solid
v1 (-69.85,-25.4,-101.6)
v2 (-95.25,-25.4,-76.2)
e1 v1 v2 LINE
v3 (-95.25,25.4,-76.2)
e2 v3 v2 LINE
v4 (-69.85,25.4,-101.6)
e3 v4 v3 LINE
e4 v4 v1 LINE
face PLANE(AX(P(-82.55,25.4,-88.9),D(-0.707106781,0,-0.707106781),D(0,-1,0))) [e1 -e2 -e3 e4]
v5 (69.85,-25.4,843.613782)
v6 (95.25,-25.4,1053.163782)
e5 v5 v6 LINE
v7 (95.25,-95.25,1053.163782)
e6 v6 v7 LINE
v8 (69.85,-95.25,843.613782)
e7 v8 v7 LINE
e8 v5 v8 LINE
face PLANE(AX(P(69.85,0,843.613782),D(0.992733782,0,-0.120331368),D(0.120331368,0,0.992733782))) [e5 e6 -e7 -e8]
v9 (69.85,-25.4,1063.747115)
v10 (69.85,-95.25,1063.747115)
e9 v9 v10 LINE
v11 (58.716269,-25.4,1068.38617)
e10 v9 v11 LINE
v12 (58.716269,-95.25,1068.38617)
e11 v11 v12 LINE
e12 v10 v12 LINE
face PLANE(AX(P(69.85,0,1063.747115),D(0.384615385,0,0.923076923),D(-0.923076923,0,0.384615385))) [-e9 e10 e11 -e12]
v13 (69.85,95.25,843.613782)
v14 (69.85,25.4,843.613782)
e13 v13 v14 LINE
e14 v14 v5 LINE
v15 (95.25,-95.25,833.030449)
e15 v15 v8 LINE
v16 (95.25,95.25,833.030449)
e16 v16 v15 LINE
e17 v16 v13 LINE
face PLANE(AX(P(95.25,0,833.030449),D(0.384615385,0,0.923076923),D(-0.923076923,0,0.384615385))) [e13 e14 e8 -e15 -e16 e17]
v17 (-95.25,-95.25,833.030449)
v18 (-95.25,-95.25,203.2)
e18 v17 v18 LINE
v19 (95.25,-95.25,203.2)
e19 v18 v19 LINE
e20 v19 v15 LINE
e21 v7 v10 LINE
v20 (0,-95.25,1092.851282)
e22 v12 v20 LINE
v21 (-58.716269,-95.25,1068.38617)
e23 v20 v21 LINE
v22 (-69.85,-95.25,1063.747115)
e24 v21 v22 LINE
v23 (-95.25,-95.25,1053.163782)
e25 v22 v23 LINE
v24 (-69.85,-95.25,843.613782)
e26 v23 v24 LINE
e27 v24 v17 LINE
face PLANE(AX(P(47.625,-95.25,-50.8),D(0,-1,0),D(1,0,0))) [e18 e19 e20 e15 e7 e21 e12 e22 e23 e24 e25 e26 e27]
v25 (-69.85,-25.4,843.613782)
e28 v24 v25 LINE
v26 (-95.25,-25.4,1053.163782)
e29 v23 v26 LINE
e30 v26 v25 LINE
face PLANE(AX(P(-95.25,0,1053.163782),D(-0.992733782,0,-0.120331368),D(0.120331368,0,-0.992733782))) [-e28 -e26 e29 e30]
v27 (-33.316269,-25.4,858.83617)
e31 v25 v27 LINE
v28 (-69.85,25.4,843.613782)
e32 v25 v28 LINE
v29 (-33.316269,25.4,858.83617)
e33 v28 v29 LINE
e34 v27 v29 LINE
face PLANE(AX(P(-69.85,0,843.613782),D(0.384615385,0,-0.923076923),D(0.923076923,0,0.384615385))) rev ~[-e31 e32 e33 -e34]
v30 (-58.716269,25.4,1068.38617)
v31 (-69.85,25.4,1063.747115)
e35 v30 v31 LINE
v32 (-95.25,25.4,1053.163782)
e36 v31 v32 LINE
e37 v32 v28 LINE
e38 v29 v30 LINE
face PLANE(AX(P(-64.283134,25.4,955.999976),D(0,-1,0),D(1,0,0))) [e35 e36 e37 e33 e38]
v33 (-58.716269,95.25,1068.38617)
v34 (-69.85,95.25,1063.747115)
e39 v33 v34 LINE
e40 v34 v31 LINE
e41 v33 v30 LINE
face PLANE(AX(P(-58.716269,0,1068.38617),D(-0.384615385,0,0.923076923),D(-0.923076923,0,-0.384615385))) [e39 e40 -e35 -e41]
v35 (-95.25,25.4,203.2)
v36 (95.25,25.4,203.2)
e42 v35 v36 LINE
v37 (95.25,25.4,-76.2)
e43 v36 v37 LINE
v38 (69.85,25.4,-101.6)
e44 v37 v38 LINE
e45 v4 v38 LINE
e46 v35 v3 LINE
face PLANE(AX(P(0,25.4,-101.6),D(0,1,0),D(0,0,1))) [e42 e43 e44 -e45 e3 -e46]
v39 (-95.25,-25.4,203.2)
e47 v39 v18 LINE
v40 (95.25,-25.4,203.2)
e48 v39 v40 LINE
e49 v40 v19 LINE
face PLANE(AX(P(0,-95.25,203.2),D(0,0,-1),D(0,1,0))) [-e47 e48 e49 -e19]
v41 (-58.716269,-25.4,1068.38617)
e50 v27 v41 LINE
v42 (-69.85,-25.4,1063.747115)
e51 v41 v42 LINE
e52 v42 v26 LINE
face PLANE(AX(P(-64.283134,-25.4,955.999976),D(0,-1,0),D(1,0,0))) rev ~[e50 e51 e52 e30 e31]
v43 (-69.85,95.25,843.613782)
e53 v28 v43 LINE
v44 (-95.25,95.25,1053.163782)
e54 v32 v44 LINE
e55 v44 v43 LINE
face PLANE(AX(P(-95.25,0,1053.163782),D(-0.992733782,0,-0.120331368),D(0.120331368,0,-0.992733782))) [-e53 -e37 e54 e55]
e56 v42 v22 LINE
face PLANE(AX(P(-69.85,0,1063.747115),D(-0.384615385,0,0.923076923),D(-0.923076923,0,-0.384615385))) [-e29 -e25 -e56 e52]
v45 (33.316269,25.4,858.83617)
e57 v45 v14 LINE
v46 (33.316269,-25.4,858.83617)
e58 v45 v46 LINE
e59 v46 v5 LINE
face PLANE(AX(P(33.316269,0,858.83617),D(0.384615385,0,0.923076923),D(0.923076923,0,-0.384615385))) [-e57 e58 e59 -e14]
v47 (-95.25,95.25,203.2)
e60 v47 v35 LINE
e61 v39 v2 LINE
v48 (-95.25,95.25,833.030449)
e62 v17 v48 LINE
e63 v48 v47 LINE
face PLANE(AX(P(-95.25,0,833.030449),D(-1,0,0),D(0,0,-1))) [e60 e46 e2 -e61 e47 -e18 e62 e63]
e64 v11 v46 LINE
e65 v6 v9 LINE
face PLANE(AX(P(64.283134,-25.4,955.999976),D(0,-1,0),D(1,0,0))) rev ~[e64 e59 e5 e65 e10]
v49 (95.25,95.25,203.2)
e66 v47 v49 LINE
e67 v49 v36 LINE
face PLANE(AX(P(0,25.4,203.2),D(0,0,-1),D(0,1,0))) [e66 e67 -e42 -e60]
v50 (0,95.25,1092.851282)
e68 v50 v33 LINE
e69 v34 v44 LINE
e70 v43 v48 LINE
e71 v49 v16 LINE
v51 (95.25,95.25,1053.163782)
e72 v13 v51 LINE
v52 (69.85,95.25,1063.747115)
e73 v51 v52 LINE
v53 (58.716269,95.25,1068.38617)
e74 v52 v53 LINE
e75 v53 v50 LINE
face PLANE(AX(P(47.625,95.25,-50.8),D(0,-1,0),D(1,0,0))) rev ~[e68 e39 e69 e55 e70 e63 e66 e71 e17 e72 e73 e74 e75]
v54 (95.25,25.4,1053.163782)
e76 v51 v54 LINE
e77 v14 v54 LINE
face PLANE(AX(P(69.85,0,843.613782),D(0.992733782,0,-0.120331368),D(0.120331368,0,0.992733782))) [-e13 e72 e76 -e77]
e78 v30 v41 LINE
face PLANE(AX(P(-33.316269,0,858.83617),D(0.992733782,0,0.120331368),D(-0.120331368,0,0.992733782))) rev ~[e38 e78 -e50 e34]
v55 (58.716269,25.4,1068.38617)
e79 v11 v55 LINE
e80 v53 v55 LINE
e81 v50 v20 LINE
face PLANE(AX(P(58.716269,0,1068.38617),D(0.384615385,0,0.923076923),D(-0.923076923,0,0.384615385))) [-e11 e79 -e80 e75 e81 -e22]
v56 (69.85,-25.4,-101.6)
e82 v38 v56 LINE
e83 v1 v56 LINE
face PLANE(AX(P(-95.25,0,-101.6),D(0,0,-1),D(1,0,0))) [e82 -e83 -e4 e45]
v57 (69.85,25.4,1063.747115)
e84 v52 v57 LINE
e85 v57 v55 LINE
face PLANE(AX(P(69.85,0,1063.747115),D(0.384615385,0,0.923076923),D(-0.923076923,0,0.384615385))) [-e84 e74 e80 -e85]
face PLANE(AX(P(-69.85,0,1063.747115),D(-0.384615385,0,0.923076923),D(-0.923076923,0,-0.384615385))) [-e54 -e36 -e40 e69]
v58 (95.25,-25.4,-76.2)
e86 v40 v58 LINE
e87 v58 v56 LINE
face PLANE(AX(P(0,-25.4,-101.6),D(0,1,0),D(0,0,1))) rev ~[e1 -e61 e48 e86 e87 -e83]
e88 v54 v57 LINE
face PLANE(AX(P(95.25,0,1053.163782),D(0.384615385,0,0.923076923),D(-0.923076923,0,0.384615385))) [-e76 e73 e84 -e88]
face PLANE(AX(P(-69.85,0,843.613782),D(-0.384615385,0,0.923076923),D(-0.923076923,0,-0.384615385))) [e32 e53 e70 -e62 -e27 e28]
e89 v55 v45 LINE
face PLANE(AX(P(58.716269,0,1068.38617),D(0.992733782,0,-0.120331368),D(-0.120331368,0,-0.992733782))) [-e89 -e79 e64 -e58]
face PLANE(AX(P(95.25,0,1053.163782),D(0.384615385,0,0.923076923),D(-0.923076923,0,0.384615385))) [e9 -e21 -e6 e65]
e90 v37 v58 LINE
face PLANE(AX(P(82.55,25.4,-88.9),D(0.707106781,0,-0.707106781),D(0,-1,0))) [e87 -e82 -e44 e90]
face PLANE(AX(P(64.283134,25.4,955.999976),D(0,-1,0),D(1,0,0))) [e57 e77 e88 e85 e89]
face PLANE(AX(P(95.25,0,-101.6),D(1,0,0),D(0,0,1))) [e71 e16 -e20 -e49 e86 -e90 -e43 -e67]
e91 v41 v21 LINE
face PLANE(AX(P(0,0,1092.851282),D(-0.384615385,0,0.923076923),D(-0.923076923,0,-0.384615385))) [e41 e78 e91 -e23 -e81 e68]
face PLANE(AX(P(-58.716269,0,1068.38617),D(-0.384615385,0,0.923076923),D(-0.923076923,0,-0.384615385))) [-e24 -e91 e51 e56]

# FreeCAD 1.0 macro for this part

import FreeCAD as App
import Part
import Sketcher
from FreeCAD import Vector
Q = App.Units.Quantity


def edges_at(feature, points):
    """Names of the edges that pass closest to the given points."""
    edges = feature.Shape.Edges
    near = lambda p: min(range(len(edges)), key=lambda i: edges[i].distToShape(Part.Vertex(*p))[0])
    return sorted({f"Edge{near(p) + 1}" for p in points})

doc = App.newDocument("Part")
body = doc.addObject("PartDesign::Body", "Body")

# Sketch on XZ plane
sketch1 = body.newObject("Sketcher::SketchObject", "Sketch")
sketch1.AttachmentSupport = (doc.getObject("XZ_Plane"), [""])
sketch1.MapMode = "FlatFace"
sketch1.addGeometry([
    Part.LineSegment(Vector(-95, 833, 0), Vector(-95, -102, 0)),  # 0
    Part.LineSegment(Vector(-95, -102, 0), Vector(95, -102, 0)),  # 1
    Part.LineSegment(Vector(95, -102, 0), Vector(95, 833, 0)),  # 2
    Part.LineSegment(Vector(95, 833, 0), Vector(70, 844, 0)),  # 3
    Part.LineSegment(Vector(70, 844, 0), Vector(95, 1053, 0)),  # 4
    Part.LineSegment(Vector(95, 1053, 0), Vector(70, 1064, 0)),  # 5
    Part.LineSegment(Vector(70, 1064, 0), Vector(59, 1068, 0)),  # 6
    Part.LineSegment(Vector(59, 1068, 0), Vector(0, 1093, 0)),  # 7
    Part.LineSegment(Vector(0, 1093, 0), Vector(-59, 1068, 0)),  # 8
    Part.LineSegment(Vector(-59, 1068, 0), Vector(-70, 1064, 0)),  # 9
    Part.LineSegment(Vector(-70, 1064, 0), Vector(-95, 1053, 0)),  # 10
    Part.LineSegment(Vector(-95, 1053, 0), Vector(-70, 844, 0)),  # 11
    Part.LineSegment(Vector(-70, 844, 0), Vector(-95, 833, 0)),  # 12
], False)
sketch1.addConstraint([
    Sketcher.Constraint("Coincident", 0, 2, 1, 1),
    Sketcher.Constraint("Coincident", 1, 2, 2, 1),
    Sketcher.Constraint("Coincident", 2, 2, 3, 1),
    Sketcher.Constraint("Coincident", 3, 2, 4, 1),
    Sketcher.Constraint("Coincident", 4, 2, 5, 1),
    Sketcher.Constraint("Coincident", 5, 2, 6, 1),
    Sketcher.Constraint("Coincident", 6, 2, 7, 1),
    Sketcher.Constraint("Coincident", 7, 2, 8, 1),
    Sketcher.Constraint("Coincident", 8, 2, 9, 1),
    Sketcher.Constraint("Coincident", 9, 2, 10, 1),
    Sketcher.Constraint("Coincident", 10, 2, 11, 1),
    Sketcher.Constraint("Coincident", 11, 2, 12, 1),
    Sketcher.Constraint("Coincident", 12, 2, 0, 1),
    Sketcher.Constraint("Vertical", 0),
    Sketcher.Constraint("Horizontal", 1),
    Sketcher.Constraint("Vertical", 2),
    Sketcher.Constraint("Symmetric", 6, 2, 8, 2, -2),
    Sketcher.Constraint("Symmetric", 5, 2, 9, 2, -2),
    Sketcher.Constraint("Symmetric", 4, 2, 10, 2, -2),
    Sketcher.Constraint("Symmetric", 3, 2, 11, 2, -2),
    Sketcher.Constraint("Symmetric", 2, 2, 12, 2, -2),
    Sketcher.Constraint("PointOnObject", 7, 2, -2),
    Sketcher.Constraint("Parallel", 3, 5),
    Sketcher.Constraint("Parallel", 5, 6),
    Sketcher.Constraint("Parallel", 6, 7),
    Sketcher.Constraint("Vertical", 2, 2, 4, 2),
    Sketcher.Constraint("Vertical", 3, 2, 5, 2),
    Sketcher.Constraint("DistanceX", 1, 1, 1, 2, Q("7.5 in")),
    Sketcher.Constraint("DistanceY", 0, 2, -1, 1, Q("4 in")),
    Sketcher.Constraint("DistanceX", 3, 2, 2, 2, Q("1 in")),
    Sketcher.Constraint("DistanceY", 3, 2, 4, 2, Q("8.25 in")),
    Sketcher.Constraint("DistanceY", 4, 2, 7, 2, Q("1.5625 in")),
    Sketcher.Constraint("DistanceY", 0, 2, 0, 1, 934.630449),
    Sketcher.Constraint("Distance", 7, 63.609291),
])
pad1 = body.newObject("PartDesign::Pad", "Pad")
pad1.Profile = sketch1
pad1.Length = Q("7.5 in")
pad1.Midplane = True

# Sketch on YZ plane
sketch2 = body.newObject("Sketcher::SketchObject", "Sketch001")
sketch2.AttachmentSupport = (doc.getObject("YZ_Plane"), [""])
sketch2.MapMode = "FlatFace"
sketch2.addGeometry([
    Part.LineSegment(Vector(-95, 203, 0), Vector(-95, -102, 0)),  # 0
    Part.LineSegment(Vector(-95, -102, 0), Vector(-25, -102, 0)),  # 1
    Part.LineSegment(Vector(-25, -102, 0), Vector(-25, 203, 0)),  # 2
    Part.LineSegment(Vector(-25, 203, 0), Vector(-95, 203, 0)),  # 3
    Part.LineSegment(Vector(25, 203, 0), Vector(25, -102, 0)),  # 4
    Part.LineSegment(Vector(25, -102, 0), Vector(95, -102, 0)),  # 5
    Part.LineSegment(Vector(95, -102, 0), Vector(95, 203, 0)),  # 6
    Part.LineSegment(Vector(95, 203, 0), Vector(25, 203, 0)),  # 7
], False)
sketch2.addConstraint([
    Sketcher.Constraint("Coincident", 0, 2, 1, 1),
    Sketcher.Constraint("Coincident", 1, 2, 2, 1),
    Sketcher.Constraint("Coincident", 2, 2, 3, 1),
    Sketcher.Constraint("Coincident", 3, 2, 0, 1),
    Sketcher.Constraint("Coincident", 4, 2, 5, 1),
    Sketcher.Constraint("Coincident", 5, 2, 6, 1),
    Sketcher.Constraint("Coincident", 6, 2, 7, 1),
    Sketcher.Constraint("Coincident", 7, 2, 4, 1),
    Sketcher.Constraint("Vertical", 0),
    Sketcher.Constraint("Horizontal", 1),
    Sketcher.Constraint("Vertical", 2),
    Sketcher.Constraint("Horizontal", 3),
    Sketcher.Constraint("Vertical", 4),
    Sketcher.Constraint("Horizontal", 5),
    Sketcher.Constraint("Vertical", 6),
    Sketcher.Constraint("Horizontal", 7),
    Sketcher.Constraint("Symmetric", 1, 2, 4, 2, -2),
    Sketcher.Constraint("Symmetric", 3, 2, 6, 2, -2),
    Sketcher.Constraint("DistanceY", 0, 2, 0, 1, Q("12 in")),
    Sketcher.Constraint("DistanceY", 0, 2, -1, 1, Q("4 in")),
    Sketcher.Constraint("DistanceX", 1, 2, -1, 1, Q("1 in")),
    Sketcher.Constraint("DistanceX", 1, 1, 1, 2, Q("2.75 in")),
])
pocket1 = body.newObject("PartDesign::Pocket", "Pocket")
pocket1.Profile = sketch2
pocket1.Type = "ThroughAll"
pocket1.Midplane = True
doc.recompute()

chamfer = body.newObject("PartDesign::Chamfer", "Chamfer")
chamfer.Base = (pocket1, edges_at(pocket1, [(95.25, 0, -101.6)]))
chamfer.Size = Q("1 in")
doc.recompute()

chamfer2 = body.newObject("PartDesign::Chamfer", "Chamfer001")
chamfer2.Base = (chamfer, edges_at(chamfer, [(-95.25, 0, -101.6)]))
chamfer2.Size = Q("1 in")

# Sketch on XZ plane
sketch3 = body.newObject("Sketcher::SketchObject", "Sketch002")
sketch3.AttachmentSupport = (doc.getObject("XZ_Plane"), [""])
sketch3.MapMode = "FlatFace"
sketch3.addGeometry([
    Part.LineSegment(Vector(59, 1068, 0), Vector(33, 859, 0)),  # 0
    Part.LineSegment(Vector(33, 859, 0), Vector(70, 844, 0)),  # 1
    Part.LineSegment(Vector(70, 844, 0), Vector(95, 1053, 0)),  # 2
    Part.LineSegment(Vector(95, 1053, 0), Vector(59, 1068, 0)),  # 3
    Part.LineSegment(Vector(-33, 859, 0), Vector(-59, 1068, 0)),  # 4
    Part.LineSegment(Vector(-59, 1068, 0), Vector(-95, 1053, 0)),  # 5
    Part.LineSegment(Vector(-95, 1053, 0), Vector(-70, 844, 0)),  # 6
    Part.LineSegment(Vector(-70, 844, 0), Vector(-33, 859, 0)),  # 7
], False)
sketch3.addConstraint([
    Sketcher.Constraint("Coincident", 0, 2, 1, 1),
    Sketcher.Constraint("Coincident", 1, 2, 2, 1),
    Sketcher.Constraint("Coincident", 2, 2, 3, 1),
    Sketcher.Constraint("Coincident", 3, 2, 0, 1),
    Sketcher.Constraint("Coincident", 4, 2, 5, 1),
    Sketcher.Constraint("Coincident", 5, 2, 6, 1),
    Sketcher.Constraint("Coincident", 6, 2, 7, 1),
    Sketcher.Constraint("Coincident", 7, 2, 4, 1),
    Sketcher.Constraint("Symmetric", 3, 2, 4, 2, -2),
    Sketcher.Constraint("Symmetric", 2, 2, 5, 2, -2),
    Sketcher.Constraint("Symmetric", 1, 2, 6, 2, -2),
    Sketcher.Constraint("Symmetric", 0, 2, 7, 2, -2),
    Sketcher.Constraint("Parallel", 0, 2),
    Sketcher.Constraint("Parallel", 1, 3),
    Sketcher.Constraint("DistanceX", 1, 2, 2, 2, Q("1 in")),
    Sketcher.Constraint("DistanceX", 5, 2, 2, 2, Q("7.5 in")),
    Sketcher.Constraint("DistanceY", 1, 2, 2, 2, Q("8.25 in")),
    Sketcher.Constraint("Distance", 1, 39.578209),
    Sketcher.Constraint("DistanceX", -1, 1, 0, 2, 33.316269),
    Sketcher.Constraint("DistanceY", -1, 1, 0, 2, 858.83617),
])
pocket2 = body.newObject("PartDesign::Pocket", "Pocket001")
pocket2.Profile = sketch3
pocket2.Length = Q("2 in")
pocket2.Midplane = True

doc.recompute()
